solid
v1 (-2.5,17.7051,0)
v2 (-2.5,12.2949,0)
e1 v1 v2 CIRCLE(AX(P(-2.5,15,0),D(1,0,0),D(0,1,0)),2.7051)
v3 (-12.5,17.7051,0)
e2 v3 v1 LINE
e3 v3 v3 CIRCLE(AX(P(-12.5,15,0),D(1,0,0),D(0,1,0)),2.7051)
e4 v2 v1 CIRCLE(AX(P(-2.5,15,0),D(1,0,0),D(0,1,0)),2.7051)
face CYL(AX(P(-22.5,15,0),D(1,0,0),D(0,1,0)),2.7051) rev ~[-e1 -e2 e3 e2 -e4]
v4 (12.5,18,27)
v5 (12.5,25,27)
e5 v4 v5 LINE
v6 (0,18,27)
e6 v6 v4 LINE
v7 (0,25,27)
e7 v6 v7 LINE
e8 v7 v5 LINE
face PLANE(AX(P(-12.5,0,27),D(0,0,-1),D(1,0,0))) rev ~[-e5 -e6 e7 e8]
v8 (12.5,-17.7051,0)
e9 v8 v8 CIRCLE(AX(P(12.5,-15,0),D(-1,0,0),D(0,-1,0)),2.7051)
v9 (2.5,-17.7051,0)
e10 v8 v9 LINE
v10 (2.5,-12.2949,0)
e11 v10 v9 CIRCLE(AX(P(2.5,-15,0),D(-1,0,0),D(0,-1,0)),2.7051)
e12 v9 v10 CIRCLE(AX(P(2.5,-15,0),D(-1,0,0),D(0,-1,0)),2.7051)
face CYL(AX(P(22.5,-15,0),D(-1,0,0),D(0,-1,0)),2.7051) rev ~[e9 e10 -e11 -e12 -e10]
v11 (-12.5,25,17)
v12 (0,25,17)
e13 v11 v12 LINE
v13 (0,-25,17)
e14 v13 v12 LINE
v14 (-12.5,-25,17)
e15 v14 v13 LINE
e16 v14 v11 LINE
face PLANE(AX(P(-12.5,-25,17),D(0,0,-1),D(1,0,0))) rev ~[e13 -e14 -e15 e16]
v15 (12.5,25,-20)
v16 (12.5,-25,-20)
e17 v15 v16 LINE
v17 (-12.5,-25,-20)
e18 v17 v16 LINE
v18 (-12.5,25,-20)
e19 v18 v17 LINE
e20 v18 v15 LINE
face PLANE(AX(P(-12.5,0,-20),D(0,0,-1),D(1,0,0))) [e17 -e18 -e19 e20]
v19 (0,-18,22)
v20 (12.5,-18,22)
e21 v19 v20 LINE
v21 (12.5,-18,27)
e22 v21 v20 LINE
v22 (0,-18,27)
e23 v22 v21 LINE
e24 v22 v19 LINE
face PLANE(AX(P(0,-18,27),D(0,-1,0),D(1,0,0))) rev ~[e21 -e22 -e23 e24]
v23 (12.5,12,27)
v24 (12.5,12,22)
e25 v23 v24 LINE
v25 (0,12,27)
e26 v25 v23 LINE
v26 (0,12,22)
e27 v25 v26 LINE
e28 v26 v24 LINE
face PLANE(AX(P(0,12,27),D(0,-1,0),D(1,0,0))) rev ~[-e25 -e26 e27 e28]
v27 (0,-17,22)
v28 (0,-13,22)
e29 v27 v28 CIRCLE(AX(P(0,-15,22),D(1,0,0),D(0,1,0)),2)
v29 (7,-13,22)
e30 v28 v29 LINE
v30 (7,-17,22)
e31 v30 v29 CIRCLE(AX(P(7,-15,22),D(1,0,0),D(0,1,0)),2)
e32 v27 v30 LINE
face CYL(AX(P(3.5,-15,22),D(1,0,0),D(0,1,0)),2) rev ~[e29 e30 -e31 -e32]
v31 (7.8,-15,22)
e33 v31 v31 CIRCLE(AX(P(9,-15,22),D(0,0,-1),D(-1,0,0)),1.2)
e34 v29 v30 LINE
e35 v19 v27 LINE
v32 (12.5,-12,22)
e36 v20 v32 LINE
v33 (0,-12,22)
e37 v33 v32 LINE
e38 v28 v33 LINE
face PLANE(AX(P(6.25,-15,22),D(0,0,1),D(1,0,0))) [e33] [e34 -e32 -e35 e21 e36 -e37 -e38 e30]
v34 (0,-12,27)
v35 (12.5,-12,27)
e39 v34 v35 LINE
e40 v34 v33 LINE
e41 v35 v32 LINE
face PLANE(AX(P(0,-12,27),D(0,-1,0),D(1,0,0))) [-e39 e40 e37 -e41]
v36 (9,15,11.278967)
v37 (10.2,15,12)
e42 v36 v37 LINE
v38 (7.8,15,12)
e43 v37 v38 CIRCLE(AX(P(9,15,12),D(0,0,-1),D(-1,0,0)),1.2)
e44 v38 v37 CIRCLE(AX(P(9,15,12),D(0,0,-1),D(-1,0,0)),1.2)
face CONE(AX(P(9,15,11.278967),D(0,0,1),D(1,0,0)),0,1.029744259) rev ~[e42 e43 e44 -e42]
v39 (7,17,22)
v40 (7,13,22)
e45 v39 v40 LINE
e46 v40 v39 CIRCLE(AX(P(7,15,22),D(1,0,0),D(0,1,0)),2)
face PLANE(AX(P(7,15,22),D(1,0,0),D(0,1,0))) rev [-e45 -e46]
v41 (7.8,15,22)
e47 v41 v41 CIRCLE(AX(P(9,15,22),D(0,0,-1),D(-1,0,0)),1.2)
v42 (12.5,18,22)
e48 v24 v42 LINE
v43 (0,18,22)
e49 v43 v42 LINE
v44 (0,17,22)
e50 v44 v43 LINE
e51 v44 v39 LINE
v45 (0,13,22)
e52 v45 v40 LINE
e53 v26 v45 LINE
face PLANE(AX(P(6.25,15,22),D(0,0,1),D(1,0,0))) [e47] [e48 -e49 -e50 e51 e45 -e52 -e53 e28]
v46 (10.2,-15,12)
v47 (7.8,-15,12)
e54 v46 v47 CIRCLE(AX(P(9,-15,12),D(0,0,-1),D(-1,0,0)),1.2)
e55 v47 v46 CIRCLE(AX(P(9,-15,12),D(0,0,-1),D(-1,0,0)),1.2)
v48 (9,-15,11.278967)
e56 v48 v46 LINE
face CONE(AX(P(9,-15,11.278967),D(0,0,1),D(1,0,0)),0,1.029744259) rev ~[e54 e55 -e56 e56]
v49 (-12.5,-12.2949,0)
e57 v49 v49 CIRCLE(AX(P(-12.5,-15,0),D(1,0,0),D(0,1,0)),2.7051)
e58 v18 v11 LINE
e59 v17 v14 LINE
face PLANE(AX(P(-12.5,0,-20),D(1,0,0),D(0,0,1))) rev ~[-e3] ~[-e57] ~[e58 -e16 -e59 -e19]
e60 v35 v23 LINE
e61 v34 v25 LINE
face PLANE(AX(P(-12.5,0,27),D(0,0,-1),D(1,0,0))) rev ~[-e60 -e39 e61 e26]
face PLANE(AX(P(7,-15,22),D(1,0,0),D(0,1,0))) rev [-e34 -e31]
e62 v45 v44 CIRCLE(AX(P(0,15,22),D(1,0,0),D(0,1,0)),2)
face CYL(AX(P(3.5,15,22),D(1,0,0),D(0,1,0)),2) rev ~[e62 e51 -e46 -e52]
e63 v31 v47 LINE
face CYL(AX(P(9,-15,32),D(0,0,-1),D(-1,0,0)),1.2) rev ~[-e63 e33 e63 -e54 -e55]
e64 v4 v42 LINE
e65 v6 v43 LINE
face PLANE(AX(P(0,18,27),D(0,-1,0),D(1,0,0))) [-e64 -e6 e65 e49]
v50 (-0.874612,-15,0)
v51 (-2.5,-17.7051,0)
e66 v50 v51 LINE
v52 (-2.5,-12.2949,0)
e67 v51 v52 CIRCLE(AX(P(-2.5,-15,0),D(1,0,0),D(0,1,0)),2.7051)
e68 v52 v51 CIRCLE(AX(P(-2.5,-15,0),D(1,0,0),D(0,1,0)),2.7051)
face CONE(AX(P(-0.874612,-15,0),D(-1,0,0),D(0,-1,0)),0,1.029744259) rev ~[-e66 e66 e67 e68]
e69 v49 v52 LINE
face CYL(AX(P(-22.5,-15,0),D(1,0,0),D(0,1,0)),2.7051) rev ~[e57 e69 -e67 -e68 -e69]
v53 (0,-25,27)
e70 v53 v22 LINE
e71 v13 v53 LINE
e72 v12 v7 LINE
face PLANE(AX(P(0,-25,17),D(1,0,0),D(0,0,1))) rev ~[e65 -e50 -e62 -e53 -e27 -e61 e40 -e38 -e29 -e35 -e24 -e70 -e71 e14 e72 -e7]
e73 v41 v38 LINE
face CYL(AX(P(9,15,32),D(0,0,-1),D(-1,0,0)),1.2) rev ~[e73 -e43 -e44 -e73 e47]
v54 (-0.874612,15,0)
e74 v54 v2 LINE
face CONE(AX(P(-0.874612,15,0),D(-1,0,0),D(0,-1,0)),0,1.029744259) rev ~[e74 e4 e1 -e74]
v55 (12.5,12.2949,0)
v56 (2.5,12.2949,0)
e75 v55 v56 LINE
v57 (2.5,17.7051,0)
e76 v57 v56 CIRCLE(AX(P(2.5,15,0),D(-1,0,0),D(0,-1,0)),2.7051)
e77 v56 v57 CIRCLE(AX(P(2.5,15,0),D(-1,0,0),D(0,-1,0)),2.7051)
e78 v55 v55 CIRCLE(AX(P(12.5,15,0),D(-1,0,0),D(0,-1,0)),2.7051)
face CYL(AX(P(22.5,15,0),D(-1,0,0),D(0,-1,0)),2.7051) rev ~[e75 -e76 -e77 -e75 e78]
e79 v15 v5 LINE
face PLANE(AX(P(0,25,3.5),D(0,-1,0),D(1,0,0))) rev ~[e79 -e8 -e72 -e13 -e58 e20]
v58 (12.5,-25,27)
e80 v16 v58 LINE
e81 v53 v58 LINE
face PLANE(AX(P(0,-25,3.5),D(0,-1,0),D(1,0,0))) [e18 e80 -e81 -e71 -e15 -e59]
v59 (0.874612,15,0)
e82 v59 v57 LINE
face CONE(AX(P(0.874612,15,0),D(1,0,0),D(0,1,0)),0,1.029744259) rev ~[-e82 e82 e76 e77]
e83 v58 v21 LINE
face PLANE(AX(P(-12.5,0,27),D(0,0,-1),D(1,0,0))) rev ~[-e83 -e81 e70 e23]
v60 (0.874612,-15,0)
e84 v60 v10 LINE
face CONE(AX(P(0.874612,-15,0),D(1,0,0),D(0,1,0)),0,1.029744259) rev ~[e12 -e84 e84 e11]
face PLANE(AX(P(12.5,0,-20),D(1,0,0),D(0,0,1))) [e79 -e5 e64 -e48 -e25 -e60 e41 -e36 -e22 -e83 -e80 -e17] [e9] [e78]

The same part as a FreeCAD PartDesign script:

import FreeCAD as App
import Part
import Sketcher

V = App.Vector


def add_polygon(sketch, points):
    """Adds a closed chain of lines whose ends are joined by coincident constraints."""
    first, n = sketch.GeometryCount, len(points)
    for a, b in zip(points, points[1:] + points[:1]):
        sketch.addGeometry(Part.LineSegment(App.Vector(*a, 0), App.Vector(*b, 0)), False)
    for i in range(n):
        sketch.addConstraint(Sketcher.Constraint("Coincident", first + i, 2, first + (i + 1) % n, 1))

doc = App.newDocument("Part")
body = doc.addObject("PartDesign::Body", "Body")

# Sketch on XZ plane
sketch1 = body.newObject("Sketcher::SketchObject", "Sketch")
sketch1.AttachmentSupport = (doc.getObject("XZ_Plane"), [""])
sketch1.MapMode = "FlatFace"
add_polygon(sketch1, [(-12, 27), (-12, -20), (12, -20), (12, 27)])  # lines 0-3
sketch1.addConstraint([
    Sketcher.Constraint("Vertical", 0),
    Sketcher.Constraint("Horizontal", 1),
    Sketcher.Constraint("Vertical", 2),
    Sketcher.Constraint("Horizontal", 3),
    Sketcher.Constraint("DistanceX", 1, 1, 1, 2, 25.0),
    Sketcher.Constraint("DistanceY", 0, 2, 0, 1, 47.0),
    Sketcher.Constraint("DistanceY", 0, 2, -1, 1, 20.0),
    Sketcher.Constraint("DistanceX", 0, 2, -1, 1, 12.5),
])
pad1 = body.newObject("PartDesign::Pad", "Pad")
pad1.Profile = sketch1
pad1.Length = 50
pad1.Midplane = True

# Sketch on YZ plane
sketch2 = body.newObject("Sketcher::SketchObject", "Sketch001")
sketch2.AttachmentSupport = (doc.getObject("YZ_Plane"), [""])
sketch2.MapMode = "FlatFace"
sketch2.AttachmentOffset = App.Placement(V(0, 0, -12.5), App.Rotation())
sketch2.addGeometry([
    Part.Circle(V(15, 0, 0), V(0, 0, 1), 2.7),
    Part.Circle(V(-15, 0, 0), V(0, 0, 1), 2.7),
], False)
sketch2.addConstraint([
    Sketcher.Constraint("Equal", 0, 1),
    Sketcher.Constraint("Symmetric", 0, 3, 1, 3, -1, 1),
    Sketcher.Constraint("PointOnObject", 0, 3, -1),
    Sketcher.Constraint("DistanceX", -1, 1, 0, 3, 15.0),
    Sketcher.Constraint("Diameter", 0, 5.4102),
])
doc.recompute()
hole = body.newObject("PartDesign::Hole", "Hole")
hole.Profile = sketch2
hole.ThreadType = "None"
hole.Diameter = 5.4102
hole.DepthType = "Dimension"
hole.Depth = 10
hole.DrillPoint = "Angled"
hole.DrillPointAngle = 118
hole.Reversed = True

# Sketch on YZ plane
sketch3 = body.newObject("Sketcher::SketchObject", "Sketch002")
sketch3.AttachmentSupport = (doc.getObject("YZ_Plane"), [""])
sketch3.MapMode = "FlatFace"
sketch3.AttachmentOffset = App.Placement(V(0, 0, 12.5), App.Rotation())
sketch3.addGeometry([
    Part.Circle(V(-15, 0, 0), V(0, 0, 1), 2.7),
    Part.Circle(V(15, 0, 0), V(0, 0, 1), 2.7),
], False)
sketch3.addConstraint([
    Sketcher.Constraint("Equal", 0, 1),
    Sketcher.Constraint("Symmetric", 0, 3, 1, 3, -1, 1),
    Sketcher.Constraint("PointOnObject", 0, 3, -1),
    Sketcher.Constraint("DistanceX", 0, 3, -1, 1, 15.0),
    Sketcher.Constraint("Diameter", 0, 5.4102),
])
doc.recompute()
hole2 = body.newObject("PartDesign::Hole", "Hole001")
hole2.Profile = sketch3
hole2.ThreadType = "None"
hole2.Diameter = 5.4102
hole2.DepthType = "Dimension"
hole2.Depth = 10
hole2.DrillPoint = "Angled"
hole2.DrillPointAngle = 118

# Sketch on XZ plane
sketch4 = body.newObject("Sketcher::SketchObject", "Sketch003")
sketch4.AttachmentSupport = (doc.getObject("XZ_Plane"), [""])
sketch4.MapMode = "FlatFace"
sketch4.AttachmentOffset = App.Placement(V(0, 0, 25), App.Rotation())
add_polygon(sketch4, [(-12, 27), (-12, 17), (0, 17), (0, 27)])  # lines 0-3
sketch4.addConstraint([
    Sketcher.Constraint("Vertical", 0),
    Sketcher.Constraint("Horizontal", 1),
    Sketcher.Constraint("Vertical", 2),
    Sketcher.Constraint("Horizontal", 3),
    Sketcher.Constraint("PointOnObject", 1, 2, -2),
    Sketcher.Constraint("DistanceY", 0, 2, 0, 1, 10.0),
    Sketcher.Constraint("DistanceX", 1, 1, 1, 2, 12.5),
    Sketcher.Constraint("DistanceY", -1, 1, 0, 2, 17.0),
])
pocket1 = body.newObject("PartDesign::Pocket", "Pocket")
pocket1.Profile = sketch4
pocket1.Type = "ThroughAll"

# Sketch on XY plane
sketch5 = body.newObject("Sketcher::SketchObject", "Sketch004")
sketch5.AttachmentSupport = (doc.getObject("XY_Plane"), [""])
sketch5.MapMode = "FlatFace"
sketch5.AttachmentOffset = App.Placement(V(0, 0, 27), App.Rotation())
add_polygon(sketch5, [(0, 18), (0, 12), (12, 12), (12, 18)])  # lines 0-3
add_polygon(sketch5, [(0, -12), (0, -18), (12, -18), (12, -12)])  # lines 4-7
sketch5.addConstraint([
    Sketcher.Constraint("Vertical", 0),
    Sketcher.Constraint("Horizontal", 1),
    Sketcher.Constraint("Vertical", 2),
    Sketcher.Constraint("Horizontal", 3),
    Sketcher.Constraint("Vertical", 4),
    Sketcher.Constraint("Horizontal", 5),
    Sketcher.Constraint("Vertical", 6),
    Sketcher.Constraint("Horizontal", 7),
    Sketcher.Constraint("Symmetric", 3, 2, 4, 2, -1, 1),
    Sketcher.Constraint("Symmetric", 1, 2, 6, 2, -1),
    Sketcher.Constraint("PointOnObject", 0, 2, -2),
    Sketcher.Constraint("DistanceY", 0, 2, 0, 1, 6.0),
    Sketcher.Constraint("DistanceX", 1, 1, 1, 2, 12.5),
    Sketcher.Constraint("DistanceY", -1, 1, 0, 2, 12.0),
])
pocket2 = body.newObject("PartDesign::Pocket", "Pocket001")
pocket2.Profile = sketch5
pocket2.Length = 5

# Sketch on XY plane
sketch6 = body.newObject("Sketcher::SketchObject", "Sketch005")
sketch6.AttachmentSupport = (doc.getObject("XY_Plane"), [""])
sketch6.MapMode = "FlatFace"
sketch6.AttachmentOffset = App.Placement(V(0, 0, 22), App.Rotation())
sketch6.addGeometry(Part.Circle(V(9, 15, 0), V(0, 0, 1), 1.2), False)
sketch6.addConstraint([
    Sketcher.Constraint("Diameter", 0, 2.4),
    Sketcher.Constraint("DistanceX", -1, 1, 0, 3, 9.0),
    Sketcher.Constraint("DistanceY", -1, 1, 0, 3, 15.0),
])
doc.recompute()
hole3 = body.newObject("PartDesign::Hole", "Hole002")
hole3.Profile = sketch6
hole3.ThreadType = "None"
hole3.Diameter = 2.4
hole3.DepthType = "Dimension"
hole3.Depth = 10
hole3.DrillPoint = "Angled"
hole3.DrillPointAngle = 118

# Sketch on XY plane
sketch7 = body.newObject("Sketcher::SketchObject", "Sketch006")
sketch7.AttachmentSupport = (doc.getObject("XY_Plane"), [""])
sketch7.MapMode = "FlatFace"
sketch7.AttachmentOffset = App.Placement(V(0, 0, 22), App.Rotation())
sketch7.addGeometry(Part.Circle(V(9, -15, 0), V(0, 0, 1), 1.2), False)
sketch7.addConstraint([
    Sketcher.Constraint("Diameter", 0, 2.4),
    Sketcher.Constraint("DistanceX", -1, 1, 0, 3, 9.0),
    Sketcher.Constraint("DistanceY", 0, 3, -1, 1, 15.0),
])
doc.recompute()
hole4 = body.newObject("PartDesign::Hole", "Hole003")
hole4.Profile = sketch7
hole4.ThreadType = "None"
hole4.Diameter = 2.4
hole4.DepthType = "Dimension"
hole4.Depth = 10
hole4.DrillPoint = "Angled"
hole4.DrillPointAngle = 118

# Sketch on XY plane
sketch8 = body.newObject("Sketcher::SketchObject", "Sketch007")
sketch8.AttachmentSupport = (doc.getObject("XY_Plane"), [""])
sketch8.MapMode = "FlatFace"
sketch8.AttachmentOffset = App.Placement(V(0, 0, 22), App.Rotation())
add_polygon(sketch8, [(0, 17), (0, 15), (7, 15), (7, 17)])  # lines 0-3
sketch8.addGeometry(Part.LineSegment(V(0, 15, 0), V(7, 15, 0)), True)  # axis
sketch8.addConstraint([
    Sketcher.Constraint("Vertical", 0),
    Sketcher.Constraint("Horizontal", 1),
    Sketcher.Constraint("Vertical", 2),
    Sketcher.Constraint("Horizontal", 3),
    Sketcher.Constraint("Horizontal", 4),
    Sketcher.Constraint("Coincident", 4, 1, 0, 2),
    Sketcher.Constraint("PointOnObject", 0, 2, -2),
    Sketcher.Constraint("Vertical", 2, 2, 4, 2),
    Sketcher.Constraint("DistanceX", 1, 1, 1, 2, 7.0),
    Sketcher.Constraint("DistanceY", 0, 2, 0, 1, 2.0),
    Sketcher.Constraint("DistanceY", -1, 1, 0, 2, 15.0),
])
groove = body.newObject("PartDesign::Groove", "Groove")
groove.Profile = sketch8
groove.ReferenceAxis = (sketch8, ["Axis0"])
groove.Angle = 360

# Sketch on XY plane
sketch9 = body.newObject("Sketcher::SketchObject", "Sketch008")
sketch9.AttachmentSupport = (doc.getObject("XY_Plane"), [""])
sketch9.MapMode = "FlatFace"
sketch9.AttachmentOffset = App.Placement(V(0, 0, 22), App.Rotation())
add_polygon(sketch9, [(0, -13), (0, -15), (7, -15), (7, -13)])  # lines 0-3
sketch9.addGeometry(Part.LineSegment(V(0, -15, 0), V(7, -15, 0)), True)  # axis
sketch9.addConstraint([
    Sketcher.Constraint("Vertical", 0),
    Sketcher.Constraint("Horizontal", 1),
    Sketcher.Constraint("Vertical", 2),
    Sketcher.Constraint("Horizontal", 3),
    Sketcher.Constraint("Horizontal", 4),
    Sketcher.Constraint("Coincident", 4, 1, 0, 2),
    Sketcher.Constraint("PointOnObject", 0, 2, -2),
    Sketcher.Constraint("Vertical", 2, 2, 4, 2),
    Sketcher.Constraint("DistanceX", 1, 1, 1, 2, 7.0),
    Sketcher.Constraint("DistanceY", 0, 2, 0, 1, 2.0),
    Sketcher.Constraint("DistanceY", 0, 2, -1, 1, 15.0),
])
groove2 = body.newObject("PartDesign::Groove", "Groove001")
groove2.Profile = sketch9
groove2.ReferenceAxis = (sketch9, ["Axis0"])
groove2.Angle = 360

doc.recompute()
